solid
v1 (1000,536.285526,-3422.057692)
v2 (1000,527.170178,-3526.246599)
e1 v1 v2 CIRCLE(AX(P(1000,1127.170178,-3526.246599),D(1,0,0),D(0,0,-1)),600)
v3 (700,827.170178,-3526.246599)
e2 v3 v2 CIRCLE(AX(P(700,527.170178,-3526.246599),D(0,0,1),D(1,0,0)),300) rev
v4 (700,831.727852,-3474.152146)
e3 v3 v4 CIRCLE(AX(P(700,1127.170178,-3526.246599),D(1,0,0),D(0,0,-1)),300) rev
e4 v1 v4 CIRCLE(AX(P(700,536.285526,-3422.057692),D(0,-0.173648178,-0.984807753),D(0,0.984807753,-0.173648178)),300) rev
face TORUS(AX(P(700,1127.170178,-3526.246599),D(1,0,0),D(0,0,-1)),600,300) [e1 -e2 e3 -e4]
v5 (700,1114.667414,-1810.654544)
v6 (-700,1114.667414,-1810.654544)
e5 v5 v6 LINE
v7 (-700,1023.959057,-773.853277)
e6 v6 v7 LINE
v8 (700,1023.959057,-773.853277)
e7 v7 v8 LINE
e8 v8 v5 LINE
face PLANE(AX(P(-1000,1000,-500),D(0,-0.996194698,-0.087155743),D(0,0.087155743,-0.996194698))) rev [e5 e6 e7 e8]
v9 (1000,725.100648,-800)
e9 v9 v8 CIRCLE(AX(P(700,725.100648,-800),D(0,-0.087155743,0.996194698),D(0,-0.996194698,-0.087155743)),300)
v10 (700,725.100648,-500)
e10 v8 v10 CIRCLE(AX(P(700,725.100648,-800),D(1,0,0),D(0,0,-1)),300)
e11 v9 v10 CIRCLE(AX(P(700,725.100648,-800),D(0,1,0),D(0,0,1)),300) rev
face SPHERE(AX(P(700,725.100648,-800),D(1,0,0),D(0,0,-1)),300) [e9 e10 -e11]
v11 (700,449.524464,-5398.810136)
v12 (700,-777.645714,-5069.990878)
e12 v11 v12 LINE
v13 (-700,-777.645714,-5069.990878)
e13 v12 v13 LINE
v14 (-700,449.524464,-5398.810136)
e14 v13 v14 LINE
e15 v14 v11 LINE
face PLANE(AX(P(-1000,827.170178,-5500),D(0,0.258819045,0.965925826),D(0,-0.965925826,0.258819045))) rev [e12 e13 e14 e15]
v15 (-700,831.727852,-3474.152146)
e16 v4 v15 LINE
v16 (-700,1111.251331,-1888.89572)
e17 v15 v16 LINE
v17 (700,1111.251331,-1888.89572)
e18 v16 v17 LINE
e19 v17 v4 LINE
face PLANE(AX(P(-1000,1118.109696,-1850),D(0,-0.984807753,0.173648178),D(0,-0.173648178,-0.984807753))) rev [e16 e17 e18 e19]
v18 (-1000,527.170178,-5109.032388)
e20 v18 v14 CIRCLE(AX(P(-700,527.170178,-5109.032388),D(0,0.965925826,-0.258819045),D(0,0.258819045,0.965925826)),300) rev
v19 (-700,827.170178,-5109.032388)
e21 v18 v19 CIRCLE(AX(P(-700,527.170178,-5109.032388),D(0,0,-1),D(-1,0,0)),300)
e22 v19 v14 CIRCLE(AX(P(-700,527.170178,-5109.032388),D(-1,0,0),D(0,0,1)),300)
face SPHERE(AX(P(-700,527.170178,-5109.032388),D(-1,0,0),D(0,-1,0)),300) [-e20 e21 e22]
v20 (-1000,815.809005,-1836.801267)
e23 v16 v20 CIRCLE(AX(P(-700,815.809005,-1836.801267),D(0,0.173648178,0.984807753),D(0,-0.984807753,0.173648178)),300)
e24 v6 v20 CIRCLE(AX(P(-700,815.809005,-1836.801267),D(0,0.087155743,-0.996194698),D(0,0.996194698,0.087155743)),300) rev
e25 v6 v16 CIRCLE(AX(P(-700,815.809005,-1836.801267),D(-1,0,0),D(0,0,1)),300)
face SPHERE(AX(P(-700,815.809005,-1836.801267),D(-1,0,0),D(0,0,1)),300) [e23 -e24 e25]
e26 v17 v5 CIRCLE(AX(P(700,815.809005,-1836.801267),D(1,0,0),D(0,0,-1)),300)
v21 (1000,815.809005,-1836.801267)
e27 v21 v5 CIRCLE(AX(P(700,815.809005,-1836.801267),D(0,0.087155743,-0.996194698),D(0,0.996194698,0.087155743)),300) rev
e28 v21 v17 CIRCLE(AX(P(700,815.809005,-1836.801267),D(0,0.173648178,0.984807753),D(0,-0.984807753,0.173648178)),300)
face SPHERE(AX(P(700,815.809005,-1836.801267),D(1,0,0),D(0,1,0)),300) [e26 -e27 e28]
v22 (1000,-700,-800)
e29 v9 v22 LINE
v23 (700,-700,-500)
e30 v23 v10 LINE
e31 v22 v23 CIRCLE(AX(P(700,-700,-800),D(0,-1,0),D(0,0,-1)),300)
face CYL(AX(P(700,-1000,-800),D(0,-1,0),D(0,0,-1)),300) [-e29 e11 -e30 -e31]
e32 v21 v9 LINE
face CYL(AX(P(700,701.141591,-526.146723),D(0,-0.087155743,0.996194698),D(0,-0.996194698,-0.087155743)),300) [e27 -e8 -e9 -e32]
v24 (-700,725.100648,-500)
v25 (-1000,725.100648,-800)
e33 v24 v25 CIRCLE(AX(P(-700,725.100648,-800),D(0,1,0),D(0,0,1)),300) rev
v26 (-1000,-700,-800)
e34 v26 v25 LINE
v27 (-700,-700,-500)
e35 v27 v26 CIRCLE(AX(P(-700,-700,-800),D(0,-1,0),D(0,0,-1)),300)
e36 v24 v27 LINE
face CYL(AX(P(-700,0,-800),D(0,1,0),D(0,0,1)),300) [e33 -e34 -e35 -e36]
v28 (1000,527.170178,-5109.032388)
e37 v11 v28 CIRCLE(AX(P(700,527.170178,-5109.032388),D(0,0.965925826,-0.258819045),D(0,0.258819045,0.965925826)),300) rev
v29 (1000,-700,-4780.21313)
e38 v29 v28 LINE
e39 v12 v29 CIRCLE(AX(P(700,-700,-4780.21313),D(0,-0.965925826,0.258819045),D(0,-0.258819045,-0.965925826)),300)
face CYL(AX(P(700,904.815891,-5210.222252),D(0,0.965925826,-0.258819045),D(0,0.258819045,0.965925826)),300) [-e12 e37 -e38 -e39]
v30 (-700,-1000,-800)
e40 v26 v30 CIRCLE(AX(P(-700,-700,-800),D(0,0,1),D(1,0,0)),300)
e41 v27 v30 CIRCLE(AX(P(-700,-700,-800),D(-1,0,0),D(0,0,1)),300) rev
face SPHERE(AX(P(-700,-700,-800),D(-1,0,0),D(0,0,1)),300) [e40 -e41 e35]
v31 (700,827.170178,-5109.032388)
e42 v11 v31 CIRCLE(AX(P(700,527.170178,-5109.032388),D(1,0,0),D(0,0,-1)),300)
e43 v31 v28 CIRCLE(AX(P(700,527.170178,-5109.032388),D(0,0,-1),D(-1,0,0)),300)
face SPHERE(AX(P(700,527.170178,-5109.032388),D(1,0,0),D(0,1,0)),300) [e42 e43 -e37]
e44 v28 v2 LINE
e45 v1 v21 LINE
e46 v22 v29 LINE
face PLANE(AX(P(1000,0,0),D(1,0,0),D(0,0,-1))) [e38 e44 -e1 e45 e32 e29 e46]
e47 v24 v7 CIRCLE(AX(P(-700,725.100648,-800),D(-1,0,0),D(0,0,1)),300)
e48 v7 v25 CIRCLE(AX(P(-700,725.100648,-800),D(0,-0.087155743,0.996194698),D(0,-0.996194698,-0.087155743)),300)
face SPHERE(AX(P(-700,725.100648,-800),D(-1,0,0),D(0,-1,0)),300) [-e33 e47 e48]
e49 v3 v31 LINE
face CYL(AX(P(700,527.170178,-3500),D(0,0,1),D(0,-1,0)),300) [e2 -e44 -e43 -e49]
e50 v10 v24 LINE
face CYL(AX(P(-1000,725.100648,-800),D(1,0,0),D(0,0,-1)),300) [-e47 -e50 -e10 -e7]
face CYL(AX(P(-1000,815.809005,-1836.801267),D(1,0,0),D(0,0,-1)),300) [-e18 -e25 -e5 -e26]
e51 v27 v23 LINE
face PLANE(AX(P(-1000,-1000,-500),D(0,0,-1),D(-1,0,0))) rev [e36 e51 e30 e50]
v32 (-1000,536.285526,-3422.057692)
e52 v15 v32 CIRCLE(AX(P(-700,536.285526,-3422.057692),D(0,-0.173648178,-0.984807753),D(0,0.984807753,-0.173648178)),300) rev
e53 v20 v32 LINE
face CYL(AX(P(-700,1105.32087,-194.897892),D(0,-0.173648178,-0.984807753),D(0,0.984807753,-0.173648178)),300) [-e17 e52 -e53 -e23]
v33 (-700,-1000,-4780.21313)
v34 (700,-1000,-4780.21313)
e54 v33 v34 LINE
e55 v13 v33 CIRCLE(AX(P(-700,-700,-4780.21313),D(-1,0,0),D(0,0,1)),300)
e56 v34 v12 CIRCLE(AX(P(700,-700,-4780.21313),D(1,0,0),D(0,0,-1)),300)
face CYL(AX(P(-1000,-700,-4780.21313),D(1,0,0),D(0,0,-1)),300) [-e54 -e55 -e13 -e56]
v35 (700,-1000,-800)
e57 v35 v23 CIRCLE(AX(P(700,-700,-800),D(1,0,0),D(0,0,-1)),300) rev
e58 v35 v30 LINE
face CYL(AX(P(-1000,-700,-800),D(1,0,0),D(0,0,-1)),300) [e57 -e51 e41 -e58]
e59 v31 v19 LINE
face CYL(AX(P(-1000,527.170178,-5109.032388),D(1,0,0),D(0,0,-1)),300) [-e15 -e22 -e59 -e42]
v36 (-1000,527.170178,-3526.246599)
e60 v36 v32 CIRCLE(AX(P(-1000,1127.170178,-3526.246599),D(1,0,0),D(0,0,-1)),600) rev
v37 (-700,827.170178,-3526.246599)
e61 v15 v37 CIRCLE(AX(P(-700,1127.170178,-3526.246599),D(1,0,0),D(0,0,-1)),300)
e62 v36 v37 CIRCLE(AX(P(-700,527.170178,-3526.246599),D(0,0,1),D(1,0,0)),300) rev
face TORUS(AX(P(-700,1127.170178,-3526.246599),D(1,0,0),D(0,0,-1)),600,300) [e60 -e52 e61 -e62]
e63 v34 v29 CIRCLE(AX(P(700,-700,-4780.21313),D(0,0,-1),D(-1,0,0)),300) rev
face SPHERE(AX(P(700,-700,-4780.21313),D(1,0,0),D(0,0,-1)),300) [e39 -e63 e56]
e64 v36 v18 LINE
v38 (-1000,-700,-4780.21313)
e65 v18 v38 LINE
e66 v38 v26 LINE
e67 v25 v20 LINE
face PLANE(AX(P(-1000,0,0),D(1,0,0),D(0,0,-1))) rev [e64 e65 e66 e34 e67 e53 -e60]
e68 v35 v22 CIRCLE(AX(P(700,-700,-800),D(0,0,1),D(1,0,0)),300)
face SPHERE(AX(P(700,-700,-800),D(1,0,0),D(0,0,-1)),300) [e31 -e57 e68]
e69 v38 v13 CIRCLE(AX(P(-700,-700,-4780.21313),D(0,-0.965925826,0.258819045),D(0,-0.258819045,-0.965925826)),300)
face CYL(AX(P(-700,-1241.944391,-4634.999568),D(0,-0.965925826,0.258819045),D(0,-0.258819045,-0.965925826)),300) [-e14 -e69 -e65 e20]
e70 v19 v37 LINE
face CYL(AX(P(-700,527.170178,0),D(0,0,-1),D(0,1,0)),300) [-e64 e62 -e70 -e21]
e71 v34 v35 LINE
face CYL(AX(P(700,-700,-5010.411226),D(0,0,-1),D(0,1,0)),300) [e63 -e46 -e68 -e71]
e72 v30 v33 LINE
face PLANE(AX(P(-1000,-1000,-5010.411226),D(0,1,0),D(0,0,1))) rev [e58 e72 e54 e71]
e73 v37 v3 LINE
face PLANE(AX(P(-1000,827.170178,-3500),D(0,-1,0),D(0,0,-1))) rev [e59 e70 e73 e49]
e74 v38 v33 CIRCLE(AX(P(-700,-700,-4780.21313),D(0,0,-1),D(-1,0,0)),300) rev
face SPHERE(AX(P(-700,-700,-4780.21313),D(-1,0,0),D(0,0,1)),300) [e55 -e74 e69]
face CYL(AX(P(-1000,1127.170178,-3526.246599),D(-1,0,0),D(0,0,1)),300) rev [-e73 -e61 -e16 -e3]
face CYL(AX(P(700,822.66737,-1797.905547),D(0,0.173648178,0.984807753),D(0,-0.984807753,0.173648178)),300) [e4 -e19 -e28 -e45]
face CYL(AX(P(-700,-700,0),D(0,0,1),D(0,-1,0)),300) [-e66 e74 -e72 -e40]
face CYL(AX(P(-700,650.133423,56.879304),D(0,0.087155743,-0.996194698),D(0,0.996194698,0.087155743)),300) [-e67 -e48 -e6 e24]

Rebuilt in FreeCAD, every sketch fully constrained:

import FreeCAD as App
import Part
import Sketcher

V = App.Vector
Q = App.Units.Quantity


def add_polygon(sketch, points):
    """Adds a closed chain of lines whose ends are joined by coincident constraints."""
    first, n = sketch.GeometryCount, len(points)
    for a, b in zip(points, points[1:] + points[:1]):
        sketch.addGeometry(Part.LineSegment(App.Vector(*a, 0), App.Vector(*b, 0)), False)
    for i in range(n):
        sketch.addConstraint(Sketcher.Constraint("Coincident", first + i, 2, first + (i + 1) % n, 1))

doc = App.newDocument("Part")
params = doc.addObject("Spreadsheet::Sheet", "Params")
for row, (alias, value) in enumerate([
    ("sketch1_width", "2000 mm"),
    ("pad1_length", "1000 mm"),
    ("pad1_length2", "1000 mm"),
    ("fillet_radius", "300 mm"),
], start=1):
    params.set(f"A{row}", alias)
    params.set(f"B{row}", "=" + value)
    params.setAlias(f"B{row}", alias)

body = doc.addObject("PartDesign::Body", "Body")

sketch1 = body.newObject("Sketcher::SketchObject", "Sketch")
sketch1.AttachmentSupport = (doc.getObject("YZ_Plane"), [""])
sketch1.MapMode = "FlatFace"
add_polygon(sketch1, [(1000, -500), (-1000, -500), (-1000, -5010.411226), (827.170178, -5500), (827.170178, -3500), (1118.109696, -1850)])
sketch1.addConstraint(Sketcher.Constraint("Horizontal", 0))
sketch1.addConstraint(Sketcher.Constraint("Vertical", 1))
sketch1.addConstraint(Sketcher.Constraint("Vertical", 3))
sketch1.addConstraint(Sketcher.Constraint("Equal", 0, 3))
sketch1.addConstraint(Sketcher.Constraint("DistanceX", 0, 2, 0, 1, 2000.0))
sketch1.addConstraint(Sketcher.Constraint("Angle", 2, Q("-15 deg")))
sketch1.addConstraint(Sketcher.Constraint("Angle", 4, Q("80 deg")))
sketch1.addConstraint(Sketcher.Constraint("Angle", 5, Q("95 deg")))
sketch1.addConstraint(Sketcher.Constraint("DistanceX", 0, 2, -1, 1, 1000.0))
sketch1.addConstraint(Sketcher.Constraint("DistanceY", 0, 2, -1, 1, 500.0))
sketch1.addConstraint(Sketcher.Constraint("DistanceY", 2, 2, -1, 1, 5500.0))
sketch1.addConstraint(Sketcher.Constraint("DistanceY", 4, 2, -1, 1, 1850.0))
sketch1.setExpression("Constraints[10]", "Params.sketch1_width")
pad1 = body.newObject("PartDesign::Pad", "Pad")
pad1.Profile = sketch1
pad1.Type = "TwoLengths"
pad1.setExpression("Length", "Params.pad1_length")
pad1.setExpression("Length2", "Params.pad1_length2")
doc.recompute()

fillet = body.newObject("PartDesign::Fillet", "Fillet")
fillet.Base = (pad1, ["Edge1"])
fillet.UseAllEdges = True
fillet.setExpression("Radius", "Params.fillet_radius")

doc.recompute()
